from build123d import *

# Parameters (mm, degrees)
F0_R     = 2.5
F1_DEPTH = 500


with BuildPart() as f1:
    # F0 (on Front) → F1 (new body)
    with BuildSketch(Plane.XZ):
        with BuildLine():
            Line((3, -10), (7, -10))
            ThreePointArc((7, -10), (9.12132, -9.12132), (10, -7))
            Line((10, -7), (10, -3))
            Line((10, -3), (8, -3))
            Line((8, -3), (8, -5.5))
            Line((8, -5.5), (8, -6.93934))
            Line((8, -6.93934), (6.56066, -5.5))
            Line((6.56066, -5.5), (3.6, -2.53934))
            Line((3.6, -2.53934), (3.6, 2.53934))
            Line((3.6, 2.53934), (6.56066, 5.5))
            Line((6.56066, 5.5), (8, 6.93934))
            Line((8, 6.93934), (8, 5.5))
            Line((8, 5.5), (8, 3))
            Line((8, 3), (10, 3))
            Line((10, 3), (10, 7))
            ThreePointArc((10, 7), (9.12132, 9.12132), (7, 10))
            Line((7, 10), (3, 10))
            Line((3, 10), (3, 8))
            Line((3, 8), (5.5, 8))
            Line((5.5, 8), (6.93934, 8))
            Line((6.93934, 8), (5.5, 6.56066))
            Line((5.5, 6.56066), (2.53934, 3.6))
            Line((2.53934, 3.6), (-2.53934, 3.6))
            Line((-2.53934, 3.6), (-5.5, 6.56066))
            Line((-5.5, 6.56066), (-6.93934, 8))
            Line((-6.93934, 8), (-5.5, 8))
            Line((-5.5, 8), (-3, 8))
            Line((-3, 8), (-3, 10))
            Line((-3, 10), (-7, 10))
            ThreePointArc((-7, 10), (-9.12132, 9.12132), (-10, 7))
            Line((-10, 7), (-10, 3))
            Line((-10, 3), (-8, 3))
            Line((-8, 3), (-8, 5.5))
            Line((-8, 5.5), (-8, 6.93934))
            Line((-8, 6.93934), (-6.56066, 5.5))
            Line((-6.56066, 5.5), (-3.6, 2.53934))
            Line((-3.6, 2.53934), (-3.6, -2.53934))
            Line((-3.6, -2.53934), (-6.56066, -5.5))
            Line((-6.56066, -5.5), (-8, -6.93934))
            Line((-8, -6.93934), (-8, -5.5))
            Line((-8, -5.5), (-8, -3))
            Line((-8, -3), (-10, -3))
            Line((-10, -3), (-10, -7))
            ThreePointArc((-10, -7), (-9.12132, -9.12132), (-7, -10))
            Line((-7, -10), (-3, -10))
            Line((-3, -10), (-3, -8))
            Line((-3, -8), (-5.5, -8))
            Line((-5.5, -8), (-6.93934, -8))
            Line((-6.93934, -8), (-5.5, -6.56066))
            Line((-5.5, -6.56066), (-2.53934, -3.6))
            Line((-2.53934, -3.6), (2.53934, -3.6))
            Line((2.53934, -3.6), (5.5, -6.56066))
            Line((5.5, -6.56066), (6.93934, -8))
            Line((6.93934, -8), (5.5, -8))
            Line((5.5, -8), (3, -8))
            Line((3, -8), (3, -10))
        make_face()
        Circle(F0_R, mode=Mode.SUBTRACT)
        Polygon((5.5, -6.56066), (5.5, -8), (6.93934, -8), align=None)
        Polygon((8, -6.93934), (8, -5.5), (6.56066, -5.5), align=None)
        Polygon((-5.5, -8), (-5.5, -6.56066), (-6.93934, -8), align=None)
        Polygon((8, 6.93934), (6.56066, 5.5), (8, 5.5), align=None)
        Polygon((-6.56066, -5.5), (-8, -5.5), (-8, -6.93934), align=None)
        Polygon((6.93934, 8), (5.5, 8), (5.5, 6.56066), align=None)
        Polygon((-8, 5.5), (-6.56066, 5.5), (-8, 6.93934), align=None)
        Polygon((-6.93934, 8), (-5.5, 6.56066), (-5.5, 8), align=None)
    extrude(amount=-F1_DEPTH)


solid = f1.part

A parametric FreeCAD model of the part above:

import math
import FreeCAD as App
import Part
import Sketcher
Q = App.Units.Quantity

doc = App.newDocument("Part")
body = doc.addObject("PartDesign::Body", "Body")

# Sketch on XZ plane
sketch1 = body.newObject("Sketcher::SketchObject", "Sketch")
sketch1.AttachmentSupport = (doc.getObject("XZ_Plane"), [""])
sketch1.MapMode = "FlatFace"
sketch1.addGeometry(Part.LineSegment(App.Vector(3, -10, 0), App.Vector(7, -10, 0)), False)
sketch1.addGeometry(Part.ArcOfCircle(Part.Circle(App.Vector(7, -7, 0), App.Vector(0, 0, 1), 3), math.radians(-90), math.radians(0)), False)
sketch1.addGeometry(Part.LineSegment(App.Vector(10, -7, 0), App.Vector(10, -3, 0)), False)
sketch1.addGeometry(Part.LineSegment(App.Vector(10, -3, 0), App.Vector(8, -3, 0)), False)
sketch1.addGeometry(Part.LineSegment(App.Vector(8, -3, 0), App.Vector(8, -5.5, 0)), False)
sketch1.addGeometry(Part.LineSegment(App.Vector(8, -5.5, 0), App.Vector(6.6, -5.5, 0)), False)
sketch1.addGeometry(Part.LineSegment(App.Vector(6.6, -5.5, 0), App.Vector(3.6, -2.5, 0)), False)
sketch1.addGeometry(Part.LineSegment(App.Vector(3.6, -2.5, 0), App.Vector(3.6, 2.5, 0)), False)
sketch1.addGeometry(Part.LineSegment(App.Vector(3.6, 2.5, 0), App.Vector(6.6, 5.5, 0)), False)
sketch1.addGeometry(Part.LineSegment(App.Vector(6.6, 5.5, 0), App.Vector(8, 5.5, 0)), False)
sketch1.addGeometry(Part.LineSegment(App.Vector(8, 5.5, 0), App.Vector(8, 3, 0)), False)
sketch1.addGeometry(Part.LineSegment(App.Vector(8, 3, 0), App.Vector(10, 3, 0)), False)
sketch1.addGeometry(Part.LineSegment(App.Vector(10, 3, 0), App.Vector(10, 7, 0)), False)
sketch1.addGeometry(Part.ArcOfCircle(Part.Circle(App.Vector(7, 7, 0), App.Vector(0, 0, 1), 3), math.radians(0), math.radians(90)), False)
sketch1.addGeometry(Part.LineSegment(App.Vector(7, 10, 0), App.Vector(3, 10, 0)), False)
sketch1.addGeometry(Part.LineSegment(App.Vector(3, 10, 0), App.Vector(3, 8, 0)), False)
sketch1.addGeometry(Part.LineSegment(App.Vector(3, 8, 0), App.Vector(5.5, 8, 0)), False)
sketch1.addGeometry(Part.LineSegment(App.Vector(5.5, 8, 0), App.Vector(5.5, 6.6, 0)), False)
sketch1.addGeometry(Part.LineSegment(App.Vector(5.5, 6.6, 0), App.Vector(2.5, 3.6, 0)), False)
sketch1.addGeometry(Part.LineSegment(App.Vector(2.5, 3.6, 0), App.Vector(-2.5, 3.6, 0)), False)
sketch1.addGeometry(Part.LineSegment(App.Vector(-2.5, 3.6, 0), App.Vector(-5.5, 6.6, 0)), False)
sketch1.addGeometry(Part.LineSegment(App.Vector(-5.5, 6.6, 0), App.Vector(-5.5, 8, 0)), False)
sketch1.addGeometry(Part.LineSegment(App.Vector(-5.5, 8, 0), App.Vector(-3, 8, 0)), False)
sketch1.addGeometry(Part.LineSegment(App.Vector(-3, 8, 0), App.Vector(-3, 10, 0)), False)
sketch1.addGeometry(Part.LineSegment(App.Vector(-3, 10, 0), App.Vector(-7, 10, 0)), False)
sketch1.addGeometry(Part.ArcOfCircle(Part.Circle(App.Vector(-7, 7, 0), App.Vector(0, 0, 1), 3), math.radians(90), math.radians(180)), False)
sketch1.addGeometry(Part.LineSegment(App.Vector(-10, 7, 0), App.Vector(-10, 3, 0)), False)
sketch1.addGeometry(Part.LineSegment(App.Vector(-10, 3, 0), App.Vector(-8, 3, 0)), False)
sketch1.addGeometry(Part.LineSegment(App.Vector(-8, 3, 0), App.Vector(-8, 5.5, 0)), False)
sketch1.addGeometry(Part.LineSegment(App.Vector(-8, 5.5, 0), App.Vector(-6.6, 5.5, 0)), False)
sketch1.addGeometry(Part.LineSegment(App.Vector(-6.6, 5.5, 0), App.Vector(-3.6, 2.5, 0)), False)
sketch1.addGeometry(Part.LineSegment(App.Vector(-3.6, 2.5, 0), App.Vector(-3.6, -2.5, 0)), False)
sketch1.addGeometry(Part.LineSegment(App.Vector(-3.6, -2.5, 0), App.Vector(-6.6, -5.5, 0)), False)
sketch1.addGeometry(Part.LineSegment(App.Vector(-6.6, -5.5, 0), App.Vector(-8, -5.5, 0)), False)
sketch1.addGeometry(Part.LineSegment(App.Vector(-8, -5.5, 0), App.Vector(-8, -3, 0)), False)
sketch1.addGeometry(Part.LineSegment(App.Vector(-8, -3, 0), App.Vector(-10, -3, 0)), False)
sketch1.addGeometry(Part.LineSegment(App.Vector(-10, -3, 0), App.Vector(-10, -7, 0)), False)
sketch1.addGeometry(Part.ArcOfCircle(Part.Circle(App.Vector(-7, -7, 0), App.Vector(0, 0, 1), 3), math.radians(-180), math.radians(-90)), False)
sketch1.addGeometry(Part.LineSegment(App.Vector(-7, -10, 0), App.Vector(-3, -10, 0)), False)
sketch1.addGeometry(Part.LineSegment(App.Vector(-3, -10, 0), App.Vector(-3, -8, 0)), False)
sketch1.addGeometry(Part.LineSegment(App.Vector(-3, -8, 0), App.Vector(-5.5, -8, 0)), False)
sketch1.addGeometry(Part.LineSegment(App.Vector(-5.5, -8, 0), App.Vector(-5.5, -6.6, 0)), False)
sketch1.addGeometry(Part.LineSegment(App.Vector(-5.5, -6.6, 0), App.Vector(-2.5, -3.6, 0)), False)
sketch1.addGeometry(Part.LineSegment(App.Vector(-2.5, -3.6, 0), App.Vector(2.5, -3.6, 0)), False)
sketch1.addGeometry(Part.LineSegment(App.Vector(2.5, -3.6, 0), App.Vector(5.5, -6.6, 0)), False)
sketch1.addGeometry(Part.LineSegment(App.Vector(5.5, -6.6, 0), App.Vector(5.5, -8, 0)), False)
sketch1.addGeometry(Part.LineSegment(App.Vector(5.5, -8, 0), App.Vector(3, -8, 0)), False)
sketch1.addGeometry(Part.LineSegment(App.Vector(3, -8, 0), App.Vector(3, -10, 0)), False)
sketch1.addGeometry(Part.Circle(App.Vector(0, 0, 0), App.Vector(0, 0, 1), 2.5), False)
sketch1.addConstraint(Sketcher.Constraint("Tangent", 0, 2, 1, 1))
sketch1.addConstraint(Sketcher.Constraint("Tangent", 1, 2, 2, 1))
sketch1.addConstraint(Sketcher.Constraint("Coincident", 2, 2, 3, 1))
sketch1.addConstraint(Sketcher.Constraint("Coincident", 3, 2, 4, 1))
sketch1.addConstraint(Sketcher.Constraint("Coincident", 4, 2, 5, 1))
sketch1.addConstraint(Sketcher.Constraint("Coincident", 5, 2, 6, 1))
sketch1.addConstraint(Sketcher.Constraint("Coincident", 6, 2, 7, 1))
sketch1.addConstraint(Sketcher.Constraint("Coincident", 7, 2, 8, 1))
sketch1.addConstraint(Sketcher.Constraint("Coincident", 8, 2, 9, 1))
sketch1.addConstraint(Sketcher.Constraint("Coincident", 9, 2, 10, 1))
sketch1.addConstraint(Sketcher.Constraint("Coincident", 10, 2, 11, 1))
sketch1.addConstraint(Sketcher.Constraint("Coincident", 11, 2, 12, 1))
sketch1.addConstraint(Sketcher.Constraint("Tangent", 12, 2, 13, 1))
sketch1.addConstraint(Sketcher.Constraint("Tangent", 13, 2, 14, 1))
sketch1.addConstraint(Sketcher.Constraint("Coincident", 14, 2, 15, 1))
sketch1.addConstraint(Sketcher.Constraint("Coincident", 15, 2, 16, 1))
sketch1.addConstraint(Sketcher.Constraint("Coincident", 16, 2, 17, 1))
sketch1.addConstraint(Sketcher.Constraint("Coincident", 17, 2, 18, 1))
sketch1.addConstraint(Sketcher.Constraint("Coincident", 18, 2, 19, 1))
sketch1.addConstraint(Sketcher.Constraint("Coincident", 19, 2, 20, 1))
sketch1.addConstraint(Sketcher.Constraint("Coincident", 20, 2, 21, 1))
sketch1.addConstraint(Sketcher.Constraint("Coincident", 21, 2, 22, 1))
sketch1.addConstraint(Sketcher.Constraint("Coincident", 22, 2, 23, 1))
sketch1.addConstraint(Sketcher.Constraint("Coincident", 23, 2, 24, 1))
sketch1.addConstraint(Sketcher.Constraint("Tangent", 24, 2, 25, 1))
sketch1.addConstraint(Sketcher.Constraint("Tangent", 25, 2, 26, 1))
sketch1.addConstraint(Sketcher.Constraint("Coincident", 26, 2, 27, 1))
sketch1.addConstraint(Sketcher.Constraint("Coincident", 27, 2, 28, 1))
sketch1.addConstraint(Sketcher.Constraint("Coincident", 28, 2, 29, 1))
sketch1.addConstraint(Sketcher.Constraint("Coincident", 29, 2, 30, 1))
sketch1.addConstraint(Sketcher.Constraint("Coincident", 30, 2, 31, 1))
sketch1.addConstraint(Sketcher.Constraint("Coincident", 31, 2, 32, 1))
sketch1.addConstraint(Sketcher.Constraint("Coincident", 32, 2, 33, 1))
sketch1.addConstraint(Sketcher.Constraint("Coincident", 33, 2, 34, 1))
sketch1.addConstraint(Sketcher.Constraint("Coincident", 34, 2, 35, 1))
sketch1.addConstraint(Sketcher.Constraint("Coincident", 35, 2, 36, 1))
sketch1.addConstraint(Sketcher.Constraint("Tangent", 36, 2, 37, 1))
sketch1.addConstraint(Sketcher.Constraint("Tangent", 37, 2, 38, 1))
sketch1.addConstraint(Sketcher.Constraint("Coincident", 38, 2, 39, 1))
sketch1.addConstraint(Sketcher.Constraint("Coincident", 39, 2, 40, 1))
sketch1.addConstraint(Sketcher.Constraint("Coincident", 40, 2, 41, 1))
sketch1.addConstraint(Sketcher.Constraint("Coincident", 41, 2, 42, 1))
sketch1.addConstraint(Sketcher.Constraint("Coincident", 42, 2, 43, 1))
sketch1.addConstraint(Sketcher.Constraint("Coincident", 43, 2, 44, 1))
sketch1.addConstraint(Sketcher.Constraint("Coincident", 44, 2, 45, 1))
sketch1.addConstraint(Sketcher.Constraint("Coincident", 45, 2, 46, 1))
sketch1.addConstraint(Sketcher.Constraint("Coincident", 46, 2, 47, 1))
sketch1.addConstraint(Sketcher.Constraint("Coincident", 47, 2, 0, 1))
sketch1.addConstraint(Sketcher.Constraint("Horizontal", 0))
sketch1.addConstraint(Sketcher.Constraint("Vertical", 2))
sketch1.addConstraint(Sketcher.Constraint("Horizontal", 3))
sketch1.addConstraint(Sketcher.Constraint("Vertical", 4))
sketch1.addConstraint(Sketcher.Constraint("Horizontal", 5))
sketch1.addConstraint(Sketcher.Constraint("Vertical", 7))
sketch1.addConstraint(Sketcher.Constraint("Horizontal", 9))
sketch1.addConstraint(Sketcher.Constraint("Vertical", 10))
sketch1.addConstraint(Sketcher.Constraint("Horizontal", 11))
sketch1.addConstraint(Sketcher.Constraint("Vertical", 12))
sketch1.addConstraint(Sketcher.Constraint("Horizontal", 14))
sketch1.addConstraint(Sketcher.Constraint("Vertical", 15))
sketch1.addConstraint(Sketcher.Constraint("Horizontal", 16))
sketch1.addConstraint(Sketcher.Constraint("Vertical", 17))
sketch1.addConstraint(Sketcher.Constraint("Horizontal", 19))
sketch1.addConstraint(Sketcher.Constraint("Vertical", 21))
sketch1.addConstraint(Sketcher.Constraint("Horizontal", 22))
sketch1.addConstraint(Sketcher.Constraint("Vertical", 23))
sketch1.addConstraint(Sketcher.Constraint("Horizontal", 24))
sketch1.addConstraint(Sketcher.Constraint("Vertical", 26))
sketch1.addConstraint(Sketcher.Constraint("Horizontal", 27))
sketch1.addConstraint(Sketcher.Constraint("Vertical", 28))
sketch1.addConstraint(Sketcher.Constraint("Horizontal", 29))
sketch1.addConstraint(Sketcher.Constraint("Vertical", 31))
sketch1.addConstraint(Sketcher.Constraint("Horizontal", 33))
sketch1.addConstraint(Sketcher.Constraint("Vertical", 34))
sketch1.addConstraint(Sketcher.Constraint("Horizontal", 35))
sketch1.addConstraint(Sketcher.Constraint("Vertical", 36))
sketch1.addConstraint(Sketcher.Constraint("Horizontal", 38))
sketch1.addConstraint(Sketcher.Constraint("Vertical", 39))
sketch1.addConstraint(Sketcher.Constraint("Horizontal", 40))
sketch1.addConstraint(Sketcher.Constraint("Vertical", 41))
sketch1.addConstraint(Sketcher.Constraint("Horizontal", 43))
sketch1.addConstraint(Sketcher.Constraint("Vertical", 45))
sketch1.addConstraint(Sketcher.Constraint("Horizontal", 46))
sketch1.addConstraint(Sketcher.Constraint("Vertical", 47))
sketch1.addConstraint(Sketcher.Constraint("Coincident", 48, 3, -1, 1))
sketch1.addConstraint(Sketcher.Constraint("Equal", 1, 13))
sketch1.addConstraint(Sketcher.Constraint("Equal", 13, 25))
sketch1.addConstraint(Sketcher.Constraint("Equal", 25, 37))
sketch1.addConstraint(Sketcher.Constraint("Symmetric", 1, 3, 25, 3, -1, 1))
sketch1.addConstraint(Sketcher.Constraint("Symmetric", 13, 3, 37, 3, -1, 1))
sketch1.addConstraint(Sketcher.Constraint("Symmetric", 3, 2, 27, 2, -1, 1))
sketch1.addConstraint(Sketcher.Constraint("Symmetric", 5, 2, 29, 2, -1, 1))
sketch1.addConstraint(Sketcher.Constraint("Symmetric", 6, 2, 30, 2, -1, 1))
sketch1.addConstraint(Sketcher.Constraint("Symmetric", 8, 2, 32, 2, -1, 1))
sketch1.addConstraint(Sketcher.Constraint("Symmetric", 10, 2, 34, 2, -1, 1))
sketch1.addConstraint(Sketcher.Constraint("Symmetric", 15, 2, 39, 2, -1, 1))
sketch1.addConstraint(Sketcher.Constraint("Symmetric", 17, 2, 41, 2, -1, 1))
sketch1.addConstraint(Sketcher.Constraint("Symmetric", 18, 2, 42, 2, -1, 1))
sketch1.addConstraint(Sketcher.Constraint("Symmetric", 20, 2, 44, 2, -1, 1))
sketch1.addConstraint(Sketcher.Constraint("Symmetric", 22, 2, 46, 2, -1, 1))
sketch1.addConstraint(Sketcher.Constraint("Symmetric", 13, 3, 25, 3, -2))
sketch1.addConstraint(Sketcher.Constraint("Symmetric", 17, 2, 20, 2, -2))
sketch1.addConstraint(Sketcher.Constraint("Symmetric", 15, 2, 22, 2, -2))
sketch1.addConstraint(Sketcher.Constraint("Symmetric", 10, 2, 27, 2, -2))
sketch1.addConstraint(Sketcher.Constraint("Symmetric", 8, 2, 29, 2, -2))
sketch1.addConstraint(Sketcher.Constraint("Perpendicular", 6, 8))
sketch1.addConstraint(Sketcher.Constraint("Parallel", 8, 18))
sketch1.addConstraint(Sketcher.Constraint("Perpendicular", 18, 20))
sketch1.addConstraint(Sketcher.Constraint("Perpendicular", 30, 32))
sketch1.addConstraint(Sketcher.Constraint("Perpendicular", 42, 44))
sketch1.addConstraint(Sketcher.Constraint("Horizontal", 7, 2, 30, 2))
sketch1.addConstraint(Sketcher.Constraint("Equal", 38, 2))
sketch1.addConstraint(Sketcher.Constraint("Equal", 46, 4))
sketch1.addConstraint(Sketcher.Constraint("Equal", 43, 7))
sketch1.addConstraint(Sketcher.Constraint("Equal", 35, 15))
sketch1.addConstraint(Sketcher.Constraint("Equal", 33, 17))
sketch1.addConstraint(Sketcher.Constraint("Equal", 8, 18))
sketch1.addConstraint(Sketcher.Constraint("Diameter", 48, Q("5 mm")))
sketch1.addConstraint(Sketcher.Constraint("Radius", 1, Q("3.000001 mm")))
sketch1.addConstraint(Sketcher.Constraint("DistanceX", 0, 1, 0, 2, Q("4 mm")))
sketch1.addConstraint(Sketcher.Constraint("DistanceX", 3, 2, 3, 1, Q("2 mm")))
sketch1.addConstraint(Sketcher.Constraint("DistanceX", 16, 1, 16, 2, Q("2.5 mm")))
sketch1.addConstraint(Sketcher.Constraint("DistanceX", -1, 1, 1, 3, Q("6.999999 mm")))
sketch1.addConstraint(Sketcher.Constraint("DistanceX", -1, 1, 6, 2, Q("3.6 mm")))
sketch1.addConstraint(Sketcher.Constraint("DistanceX", 5, 2, 5, 1, Q("1.43934 mm")))
pad1 = body.newObject("PartDesign::Pad", "Pad")
pad1.Profile = sketch1
pad1.Length = 500
pad1.Reversed = True

doc.recompute()
